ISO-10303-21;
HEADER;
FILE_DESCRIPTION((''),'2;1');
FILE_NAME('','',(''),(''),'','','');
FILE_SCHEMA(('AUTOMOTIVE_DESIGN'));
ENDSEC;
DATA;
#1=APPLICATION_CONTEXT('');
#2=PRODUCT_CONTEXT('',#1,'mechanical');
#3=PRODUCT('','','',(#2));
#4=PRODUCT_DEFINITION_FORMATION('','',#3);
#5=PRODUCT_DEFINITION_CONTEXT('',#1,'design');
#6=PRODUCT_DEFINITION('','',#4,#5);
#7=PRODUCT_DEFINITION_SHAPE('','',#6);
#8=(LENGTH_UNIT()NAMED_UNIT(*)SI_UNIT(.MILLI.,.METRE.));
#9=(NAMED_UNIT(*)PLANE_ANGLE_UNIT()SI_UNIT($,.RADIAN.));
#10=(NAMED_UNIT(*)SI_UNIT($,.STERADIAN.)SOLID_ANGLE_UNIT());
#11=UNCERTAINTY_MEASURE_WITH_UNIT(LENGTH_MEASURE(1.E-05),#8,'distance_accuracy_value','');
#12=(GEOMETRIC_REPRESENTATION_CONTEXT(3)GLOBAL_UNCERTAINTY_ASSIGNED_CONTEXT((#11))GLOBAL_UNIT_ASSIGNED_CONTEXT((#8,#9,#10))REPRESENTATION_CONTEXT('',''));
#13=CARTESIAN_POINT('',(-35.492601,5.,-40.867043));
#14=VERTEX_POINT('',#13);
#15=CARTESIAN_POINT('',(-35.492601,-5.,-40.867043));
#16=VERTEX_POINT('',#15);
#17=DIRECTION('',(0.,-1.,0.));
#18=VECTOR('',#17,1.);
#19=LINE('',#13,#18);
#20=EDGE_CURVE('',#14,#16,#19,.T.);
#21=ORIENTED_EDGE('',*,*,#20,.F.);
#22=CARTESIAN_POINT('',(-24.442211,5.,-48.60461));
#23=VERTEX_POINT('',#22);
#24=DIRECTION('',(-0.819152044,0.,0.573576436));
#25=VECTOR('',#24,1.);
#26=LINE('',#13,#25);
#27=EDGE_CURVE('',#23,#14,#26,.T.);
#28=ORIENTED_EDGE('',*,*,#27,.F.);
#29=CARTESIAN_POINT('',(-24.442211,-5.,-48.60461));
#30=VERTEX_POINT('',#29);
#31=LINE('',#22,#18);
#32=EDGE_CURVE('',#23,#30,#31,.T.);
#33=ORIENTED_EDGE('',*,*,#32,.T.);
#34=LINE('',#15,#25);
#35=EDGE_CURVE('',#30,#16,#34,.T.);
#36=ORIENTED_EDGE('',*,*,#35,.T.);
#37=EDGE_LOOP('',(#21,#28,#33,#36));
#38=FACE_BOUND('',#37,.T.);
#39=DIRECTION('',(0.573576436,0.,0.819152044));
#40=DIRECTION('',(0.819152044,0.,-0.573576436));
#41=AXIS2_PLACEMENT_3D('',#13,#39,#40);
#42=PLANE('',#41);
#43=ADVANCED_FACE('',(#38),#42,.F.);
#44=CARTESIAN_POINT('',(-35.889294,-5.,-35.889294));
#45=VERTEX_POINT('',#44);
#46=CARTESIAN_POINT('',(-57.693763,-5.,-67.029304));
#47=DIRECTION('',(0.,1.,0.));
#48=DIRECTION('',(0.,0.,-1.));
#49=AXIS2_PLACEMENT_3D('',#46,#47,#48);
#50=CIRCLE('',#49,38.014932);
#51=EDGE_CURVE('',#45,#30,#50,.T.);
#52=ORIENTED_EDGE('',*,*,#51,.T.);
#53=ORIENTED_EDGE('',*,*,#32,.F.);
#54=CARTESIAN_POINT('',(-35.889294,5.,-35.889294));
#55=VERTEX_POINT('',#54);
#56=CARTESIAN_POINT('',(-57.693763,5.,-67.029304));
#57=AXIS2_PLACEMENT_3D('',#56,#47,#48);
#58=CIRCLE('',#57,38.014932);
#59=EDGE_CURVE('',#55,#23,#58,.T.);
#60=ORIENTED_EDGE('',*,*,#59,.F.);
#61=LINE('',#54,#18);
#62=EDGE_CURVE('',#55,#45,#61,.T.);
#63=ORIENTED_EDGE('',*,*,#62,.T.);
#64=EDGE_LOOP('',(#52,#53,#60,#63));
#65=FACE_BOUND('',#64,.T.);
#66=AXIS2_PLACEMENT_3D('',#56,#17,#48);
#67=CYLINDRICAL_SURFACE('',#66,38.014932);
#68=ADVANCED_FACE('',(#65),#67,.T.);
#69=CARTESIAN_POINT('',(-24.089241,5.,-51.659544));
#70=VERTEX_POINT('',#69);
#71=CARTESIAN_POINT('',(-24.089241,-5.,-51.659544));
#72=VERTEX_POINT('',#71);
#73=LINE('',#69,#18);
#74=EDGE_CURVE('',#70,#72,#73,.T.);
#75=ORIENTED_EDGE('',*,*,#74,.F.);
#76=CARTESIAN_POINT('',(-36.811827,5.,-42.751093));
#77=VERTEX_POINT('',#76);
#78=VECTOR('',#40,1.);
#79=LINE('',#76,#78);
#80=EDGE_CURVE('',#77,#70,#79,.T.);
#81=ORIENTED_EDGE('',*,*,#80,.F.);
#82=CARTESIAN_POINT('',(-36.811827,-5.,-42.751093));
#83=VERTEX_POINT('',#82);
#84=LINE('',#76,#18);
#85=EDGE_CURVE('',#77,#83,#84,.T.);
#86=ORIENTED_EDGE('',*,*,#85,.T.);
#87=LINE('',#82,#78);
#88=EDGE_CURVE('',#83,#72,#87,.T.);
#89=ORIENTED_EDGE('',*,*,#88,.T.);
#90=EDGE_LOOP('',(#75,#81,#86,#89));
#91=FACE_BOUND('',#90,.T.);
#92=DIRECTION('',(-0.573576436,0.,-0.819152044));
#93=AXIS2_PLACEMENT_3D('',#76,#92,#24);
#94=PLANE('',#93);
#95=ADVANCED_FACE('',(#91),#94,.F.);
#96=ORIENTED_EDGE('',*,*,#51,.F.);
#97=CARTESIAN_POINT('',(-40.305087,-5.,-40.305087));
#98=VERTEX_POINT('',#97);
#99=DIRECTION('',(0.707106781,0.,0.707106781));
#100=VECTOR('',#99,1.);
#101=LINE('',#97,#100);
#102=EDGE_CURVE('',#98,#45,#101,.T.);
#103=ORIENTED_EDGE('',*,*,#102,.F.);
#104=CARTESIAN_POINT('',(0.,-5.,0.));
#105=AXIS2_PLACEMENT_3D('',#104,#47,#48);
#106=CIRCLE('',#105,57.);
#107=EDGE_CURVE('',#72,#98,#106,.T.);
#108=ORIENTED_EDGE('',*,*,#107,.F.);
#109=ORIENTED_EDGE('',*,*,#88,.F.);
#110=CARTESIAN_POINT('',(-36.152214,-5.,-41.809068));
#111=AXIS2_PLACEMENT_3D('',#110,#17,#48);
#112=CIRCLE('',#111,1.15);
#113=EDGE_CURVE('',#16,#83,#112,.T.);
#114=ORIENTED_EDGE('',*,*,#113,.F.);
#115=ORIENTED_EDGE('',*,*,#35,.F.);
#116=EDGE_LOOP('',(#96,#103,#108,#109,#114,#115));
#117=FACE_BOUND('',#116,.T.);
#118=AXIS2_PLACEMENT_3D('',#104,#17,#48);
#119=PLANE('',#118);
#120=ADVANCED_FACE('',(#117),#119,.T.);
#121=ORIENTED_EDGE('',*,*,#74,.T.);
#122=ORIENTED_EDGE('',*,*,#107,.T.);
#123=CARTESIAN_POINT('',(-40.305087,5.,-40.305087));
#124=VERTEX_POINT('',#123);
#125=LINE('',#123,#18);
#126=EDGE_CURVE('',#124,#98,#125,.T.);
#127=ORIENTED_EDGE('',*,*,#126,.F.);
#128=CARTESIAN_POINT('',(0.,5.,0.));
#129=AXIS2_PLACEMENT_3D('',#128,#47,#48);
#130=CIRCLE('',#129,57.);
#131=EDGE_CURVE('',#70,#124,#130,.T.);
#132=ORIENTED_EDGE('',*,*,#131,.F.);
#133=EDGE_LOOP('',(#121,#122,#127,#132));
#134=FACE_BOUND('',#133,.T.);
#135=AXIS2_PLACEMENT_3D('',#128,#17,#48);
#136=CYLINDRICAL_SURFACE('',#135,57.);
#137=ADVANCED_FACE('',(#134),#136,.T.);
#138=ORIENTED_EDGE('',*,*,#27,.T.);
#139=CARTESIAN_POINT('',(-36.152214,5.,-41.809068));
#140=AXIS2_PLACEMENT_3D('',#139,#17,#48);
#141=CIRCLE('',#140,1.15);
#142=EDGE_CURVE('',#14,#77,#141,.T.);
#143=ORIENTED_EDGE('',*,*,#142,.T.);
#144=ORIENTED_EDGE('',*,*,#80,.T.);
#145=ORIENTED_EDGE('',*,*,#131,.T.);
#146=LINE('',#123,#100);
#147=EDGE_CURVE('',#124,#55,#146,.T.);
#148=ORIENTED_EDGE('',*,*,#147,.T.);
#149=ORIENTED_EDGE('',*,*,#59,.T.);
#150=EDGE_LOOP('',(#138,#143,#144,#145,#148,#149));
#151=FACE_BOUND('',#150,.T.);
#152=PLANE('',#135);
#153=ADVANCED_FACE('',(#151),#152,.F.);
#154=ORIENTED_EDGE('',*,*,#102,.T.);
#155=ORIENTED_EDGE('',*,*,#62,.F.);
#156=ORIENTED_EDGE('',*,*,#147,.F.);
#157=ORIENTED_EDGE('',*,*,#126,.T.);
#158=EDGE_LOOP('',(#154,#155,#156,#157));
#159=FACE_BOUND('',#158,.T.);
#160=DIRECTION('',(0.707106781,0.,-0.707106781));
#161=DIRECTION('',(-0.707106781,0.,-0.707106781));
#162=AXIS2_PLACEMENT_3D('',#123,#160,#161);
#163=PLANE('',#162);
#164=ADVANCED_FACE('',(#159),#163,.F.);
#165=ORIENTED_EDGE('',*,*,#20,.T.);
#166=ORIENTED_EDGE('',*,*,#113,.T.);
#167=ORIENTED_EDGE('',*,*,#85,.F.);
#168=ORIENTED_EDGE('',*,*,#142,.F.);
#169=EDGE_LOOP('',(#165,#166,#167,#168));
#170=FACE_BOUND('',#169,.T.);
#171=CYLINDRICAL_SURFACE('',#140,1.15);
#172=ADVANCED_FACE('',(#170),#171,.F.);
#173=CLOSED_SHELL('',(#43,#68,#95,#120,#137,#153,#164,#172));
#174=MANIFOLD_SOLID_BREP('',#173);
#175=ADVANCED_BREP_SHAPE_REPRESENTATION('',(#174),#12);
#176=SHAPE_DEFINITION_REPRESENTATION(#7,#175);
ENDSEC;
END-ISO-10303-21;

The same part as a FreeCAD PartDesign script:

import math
import FreeCAD as App
import Part
import Sketcher

V = App.Vector
Q = App.Units.Quantity

doc = App.newDocument("Part")
body = doc.addObject("PartDesign::Body", "Body")

sketch1 = body.newObject("Sketcher::SketchObject", "Sketch")
sketch1.AttachmentSupport = (doc.getObject("XZ_Plane"), [""])
sketch1.MapMode = "FlatFace"
sketch1.addGeometry(Part.LineSegment(V(-40.3, -40.3, 0), V(-35.9, -35.9, 0)), False)
sketch1.addGeometry(Part.ArcOfCircle(Part.Circle(V(-57.7, -67, 0), V(0, 0, 1), 38), math.radians(29), math.radians(55)), False)
sketch1.addGeometry(Part.LineSegment(V(-24.4, -48.6, 0), V(-35.5, -40.9, 0)), False)
sketch1.addGeometry(Part.ArcOfCircle(Part.Circle(V(-36.2, -41.8, 0), V(0, 0, 1), 1.1), math.radians(55), math.radians(235)), False)
sketch1.addGeometry(Part.LineSegment(V(-36.8, -42.8, 0), V(-24.1, -51.7, 0)), False)
sketch1.addGeometry(Part.ArcOfCircle(Part.Circle(V(0, 0, 0), V(0, 0, 1), 57), math.radians(-135), math.radians(-115)), False)
sketch1.addConstraint(Sketcher.Constraint("Coincident", 0, 2, 1, 2))
sketch1.addConstraint(Sketcher.Constraint("Coincident", 1, 1, 2, 1))
sketch1.addConstraint(Sketcher.Constraint("Tangent", 2, 2, 3, 1))
sketch1.addConstraint(Sketcher.Constraint("Tangent", 3, 2, 4, 1))
sketch1.addConstraint(Sketcher.Constraint("Coincident", 4, 2, 5, 2))
sketch1.addConstraint(Sketcher.Constraint("Coincident", 5, 1, 0, 1))
sketch1.addConstraint(Sketcher.Constraint("Coincident", 5, 3, -1, 1))
sketch1.addConstraint(Sketcher.Constraint("Parallel", 2, 4))
sketch1.addConstraint(Sketcher.Constraint("Radius", 5, 57.0))
sketch1.addConstraint(Sketcher.Constraint("Angle", 0, Q("45 deg")))
sketch1.addConstraint(Sketcher.Constraint("Angle", 2, Q("145 deg")))
sketch1.addConstraint(Sketcher.Constraint("Radius", 3, 1.15))
sketch1.addConstraint(Sketcher.Constraint("Radius", 1, 38.014932))
sketch1.addConstraint(Sketcher.Constraint("DistanceX", 2, 2, -1, 1, 35.492601))
sketch1.addConstraint(Sketcher.Constraint("DistanceY", 3, 2, 0, 2, 6.861799))
sketch1.addConstraint(Sketcher.Constraint("DistanceY", 4, 2, 2, 2, 10.7925))
sketch1.addConstraint(Sketcher.Constraint("DistanceX", 1, 1, -1, 1, 24.442211))
sketch1.addConstraint(Sketcher.Constraint("DistanceX", 1, 3, 3, 3, 21.541549))
pad1 = body.newObject("PartDesign::Pad", "Pad")
pad1.Profile = sketch1
pad1.Length = 10
pad1.Midplane = True

doc.recompute()
